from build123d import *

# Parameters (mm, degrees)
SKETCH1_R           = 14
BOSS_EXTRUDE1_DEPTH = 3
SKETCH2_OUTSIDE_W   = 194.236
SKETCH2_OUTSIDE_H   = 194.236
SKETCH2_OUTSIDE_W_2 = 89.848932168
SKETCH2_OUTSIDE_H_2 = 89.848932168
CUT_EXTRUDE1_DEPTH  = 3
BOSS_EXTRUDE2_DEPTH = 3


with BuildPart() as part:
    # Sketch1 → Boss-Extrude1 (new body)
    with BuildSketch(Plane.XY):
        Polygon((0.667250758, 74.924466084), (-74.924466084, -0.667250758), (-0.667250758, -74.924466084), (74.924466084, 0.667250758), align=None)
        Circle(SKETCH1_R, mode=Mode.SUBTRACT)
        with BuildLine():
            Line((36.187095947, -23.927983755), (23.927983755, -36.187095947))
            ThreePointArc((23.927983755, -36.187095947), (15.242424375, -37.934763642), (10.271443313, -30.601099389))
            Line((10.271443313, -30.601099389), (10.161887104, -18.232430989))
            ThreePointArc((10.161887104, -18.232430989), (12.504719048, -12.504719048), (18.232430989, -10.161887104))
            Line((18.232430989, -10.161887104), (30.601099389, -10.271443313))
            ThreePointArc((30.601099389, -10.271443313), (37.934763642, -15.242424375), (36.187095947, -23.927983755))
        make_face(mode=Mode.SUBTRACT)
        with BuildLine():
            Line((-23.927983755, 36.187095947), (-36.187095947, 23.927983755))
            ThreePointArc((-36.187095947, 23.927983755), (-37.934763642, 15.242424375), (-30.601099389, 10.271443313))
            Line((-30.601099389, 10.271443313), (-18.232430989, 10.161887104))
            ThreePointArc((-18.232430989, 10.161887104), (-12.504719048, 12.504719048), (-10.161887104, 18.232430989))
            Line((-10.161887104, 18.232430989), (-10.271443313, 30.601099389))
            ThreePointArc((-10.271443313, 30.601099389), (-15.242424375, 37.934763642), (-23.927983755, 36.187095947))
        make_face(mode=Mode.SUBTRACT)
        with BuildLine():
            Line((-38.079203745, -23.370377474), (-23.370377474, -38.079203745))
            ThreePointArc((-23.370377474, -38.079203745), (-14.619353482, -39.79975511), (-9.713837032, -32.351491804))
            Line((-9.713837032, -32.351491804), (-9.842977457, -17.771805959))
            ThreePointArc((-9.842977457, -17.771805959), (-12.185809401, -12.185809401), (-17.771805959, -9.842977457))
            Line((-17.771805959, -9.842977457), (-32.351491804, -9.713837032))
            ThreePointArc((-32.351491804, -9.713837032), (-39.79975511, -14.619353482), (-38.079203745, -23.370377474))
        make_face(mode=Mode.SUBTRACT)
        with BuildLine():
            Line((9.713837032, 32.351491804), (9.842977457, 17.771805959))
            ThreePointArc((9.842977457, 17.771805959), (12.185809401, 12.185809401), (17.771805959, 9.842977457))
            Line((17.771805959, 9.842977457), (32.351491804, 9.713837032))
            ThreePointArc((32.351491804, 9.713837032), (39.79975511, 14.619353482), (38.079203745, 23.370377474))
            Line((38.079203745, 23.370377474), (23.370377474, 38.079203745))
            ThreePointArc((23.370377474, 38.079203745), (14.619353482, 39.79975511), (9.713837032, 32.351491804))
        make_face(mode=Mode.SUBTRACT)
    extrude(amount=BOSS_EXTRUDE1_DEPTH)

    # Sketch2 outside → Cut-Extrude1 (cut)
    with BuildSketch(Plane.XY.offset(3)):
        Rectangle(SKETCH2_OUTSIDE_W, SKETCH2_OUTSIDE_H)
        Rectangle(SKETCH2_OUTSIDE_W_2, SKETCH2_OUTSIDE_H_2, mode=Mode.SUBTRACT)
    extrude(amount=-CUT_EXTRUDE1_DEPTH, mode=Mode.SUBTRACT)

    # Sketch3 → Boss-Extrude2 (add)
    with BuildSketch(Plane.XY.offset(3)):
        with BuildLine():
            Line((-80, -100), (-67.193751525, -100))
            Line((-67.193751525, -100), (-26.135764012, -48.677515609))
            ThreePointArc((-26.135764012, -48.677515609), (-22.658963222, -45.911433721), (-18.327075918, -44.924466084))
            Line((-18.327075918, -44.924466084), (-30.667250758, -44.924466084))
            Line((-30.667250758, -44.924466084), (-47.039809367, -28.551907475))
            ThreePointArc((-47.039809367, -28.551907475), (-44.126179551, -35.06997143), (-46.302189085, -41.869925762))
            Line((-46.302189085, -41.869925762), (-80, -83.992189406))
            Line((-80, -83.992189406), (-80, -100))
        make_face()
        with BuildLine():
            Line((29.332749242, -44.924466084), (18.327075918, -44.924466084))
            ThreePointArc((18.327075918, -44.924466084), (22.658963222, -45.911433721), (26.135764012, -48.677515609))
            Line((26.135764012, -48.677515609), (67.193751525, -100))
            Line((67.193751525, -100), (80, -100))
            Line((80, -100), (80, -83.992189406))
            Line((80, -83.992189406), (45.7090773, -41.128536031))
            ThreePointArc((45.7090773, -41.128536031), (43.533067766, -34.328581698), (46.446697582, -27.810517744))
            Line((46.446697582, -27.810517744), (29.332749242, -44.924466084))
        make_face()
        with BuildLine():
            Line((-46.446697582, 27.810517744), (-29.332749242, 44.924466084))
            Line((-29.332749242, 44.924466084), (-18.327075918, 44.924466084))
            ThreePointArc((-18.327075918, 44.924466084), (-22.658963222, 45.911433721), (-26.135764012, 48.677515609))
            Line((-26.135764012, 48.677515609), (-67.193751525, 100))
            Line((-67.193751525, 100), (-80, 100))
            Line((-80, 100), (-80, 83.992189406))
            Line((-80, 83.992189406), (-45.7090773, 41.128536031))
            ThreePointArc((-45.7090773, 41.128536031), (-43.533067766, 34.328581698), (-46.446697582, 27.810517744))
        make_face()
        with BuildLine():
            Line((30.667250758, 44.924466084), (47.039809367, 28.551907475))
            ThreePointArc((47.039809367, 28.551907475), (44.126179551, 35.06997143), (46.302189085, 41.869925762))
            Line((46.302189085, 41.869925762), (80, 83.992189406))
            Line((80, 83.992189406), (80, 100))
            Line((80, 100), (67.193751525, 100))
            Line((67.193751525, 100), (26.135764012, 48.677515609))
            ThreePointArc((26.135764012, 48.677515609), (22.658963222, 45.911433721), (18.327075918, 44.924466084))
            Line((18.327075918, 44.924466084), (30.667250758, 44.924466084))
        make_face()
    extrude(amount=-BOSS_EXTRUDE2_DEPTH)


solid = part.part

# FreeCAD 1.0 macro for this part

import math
import FreeCAD as App
import Part
import Sketcher
Q = App.Units.Quantity

doc = App.newDocument("Part")
params = doc.addObject("Spreadsheet::Sheet", "Params")
for row, (alias, value) in enumerate([
    ("sketch1_diameter", "28 mm"),
    ("sketch1_radius", "8 mm"),
    ("pad1_length", "3 mm"),
    ("pocket1_length", "3 mm"),
    ("sketch3_radius", "10 mm"),
    ("pad2_length", "3 mm"),
], start=1):
    params.set(f"A{row}", alias)
    params.set(f"B{row}", "=" + value)
    params.setAlias(f"B{row}", alias)

body = doc.addObject("PartDesign::Body", "Body")

sketch1 = doc.addObject("Sketcher::SketchObject", "Sketch")
body.addObject(sketch1)
sketch1.AttachmentSupport = (doc.XY_Plane, [""])
sketch1.MapMode = "FlatFace"
sketch1.addGeometry(Part.LineSegment(App.Vector(1, 75, 0), App.Vector(-75, -1, 0)), False)
sketch1.addGeometry(Part.LineSegment(App.Vector(-75, -1, 0), App.Vector(-1, -75, 0)), False)
sketch1.addGeometry(Part.LineSegment(App.Vector(-1, -75, 0), App.Vector(75, 1, 0)), False)
sketch1.addGeometry(Part.LineSegment(App.Vector(75, 1, 0), App.Vector(1, 75, 0)), False)
sketch1.addGeometry(Part.LineSegment(App.Vector(-23, -38, 0), App.Vector(-38, -23, 0)), False)
sketch1.addGeometry(Part.ArcOfCircle(Part.Circle(App.Vector(-32, -18, 0), App.Vector(0, 0, 1), 8), math.radians(89), math.radians(225)), False)
sketch1.addGeometry(Part.LineSegment(App.Vector(-32, -10, 0), App.Vector(-18, -10, 0)), False)
sketch1.addGeometry(Part.ArcOfCircle(Part.Circle(App.Vector(-18, -18, 0), App.Vector(0, 0, 1), 8), math.radians(1), math.radians(89)), False)
sketch1.addGeometry(Part.LineSegment(App.Vector(-10, -18, 0), App.Vector(-10, -32, 0)), False)
sketch1.addGeometry(Part.ArcOfCircle(Part.Circle(App.Vector(-18, -32, 0), App.Vector(0, 0, 1), 8), math.radians(-135), math.radians(1)), False)
sketch1.addGeometry(Part.ArcOfCircle(Part.Circle(App.Vector(31, -18, 0), App.Vector(0, 0, 1), 8), math.radians(-45), math.radians(89)), False)
sketch1.addGeometry(Part.LineSegment(App.Vector(36, -24, 0), App.Vector(24, -36, 0)), False)
sketch1.addGeometry(Part.ArcOfCircle(Part.Circle(App.Vector(18, -31, 0), App.Vector(0, 0, 1), 8), math.radians(-179), math.radians(-45)), False)
sketch1.addGeometry(Part.LineSegment(App.Vector(10, -31, 0), App.Vector(10, -18, 0)), False)
sketch1.addGeometry(Part.ArcOfCircle(Part.Circle(App.Vector(18, -18, 0), App.Vector(0, 0, 1), 8), math.radians(89), math.radians(181)), False)
sketch1.addGeometry(Part.LineSegment(App.Vector(18, -10, 0), App.Vector(31, -10, 0)), False)
sketch1.addGeometry(Part.LineSegment(App.Vector(-36, 24, 0), App.Vector(-24, 36, 0)), False)
sketch1.addGeometry(Part.ArcOfCircle(Part.Circle(App.Vector(-18, 31, 0), App.Vector(0, 0, 1), 8), math.radians(1), math.radians(135)), False)
sketch1.addGeometry(Part.LineSegment(App.Vector(-10, 31, 0), App.Vector(-10, 18, 0)), False)
sketch1.addGeometry(Part.ArcOfCircle(Part.Circle(App.Vector(-18, 18, 0), App.Vector(0, 0, 1), 8), math.radians(-91), math.radians(1)), False)
sketch1.addGeometry(Part.LineSegment(App.Vector(-18, 10, 0), App.Vector(-31, 10, 0)), False)
sketch1.addGeometry(Part.ArcOfCircle(Part.Circle(App.Vector(-31, 18, 0), App.Vector(0, 0, 1), 8), math.radians(135), math.radians(269)), False)
sketch1.addGeometry(Part.Circle(App.Vector(0, 0, 0), App.Vector(0, 0, 1), 14), False)
sketch1.addGeometry(Part.LineSegment(App.Vector(10, 18, 0), App.Vector(10, 32, 0)), False)
sketch1.addGeometry(Part.ArcOfCircle(Part.Circle(App.Vector(18, 32, 0), App.Vector(0, 0, 1), 8), math.radians(45), math.radians(181)), False)
sketch1.addGeometry(Part.LineSegment(App.Vector(23, 38, 0), App.Vector(38, 23, 0)), False)
sketch1.addGeometry(Part.ArcOfCircle(Part.Circle(App.Vector(32, 18, 0), App.Vector(0, 0, 1), 8), math.radians(-91), math.radians(45)), False)
sketch1.addGeometry(Part.LineSegment(App.Vector(32, 10, 0), App.Vector(18, 10, 0)), False)
sketch1.addGeometry(Part.ArcOfCircle(Part.Circle(App.Vector(18, 18, 0), App.Vector(0, 0, 1), 8), math.radians(-179), math.radians(-91)), False)
sketch1.addConstraint(Sketcher.Constraint("Coincident", 0, 2, 1, 1))
sketch1.addConstraint(Sketcher.Constraint("Coincident", 1, 2, 2, 1))
sketch1.addConstraint(Sketcher.Constraint("Coincident", 2, 2, 3, 1))
sketch1.addConstraint(Sketcher.Constraint("Coincident", 3, 2, 0, 1))
sketch1.addConstraint(Sketcher.Constraint("Tangent", 4, 2, 5, 2))
sketch1.addConstraint(Sketcher.Constraint("Tangent", 5, 1, 6, 1))
sketch1.addConstraint(Sketcher.Constraint("Tangent", 6, 2, 7, 2))
sketch1.addConstraint(Sketcher.Constraint("Tangent", 7, 1, 8, 1))
sketch1.addConstraint(Sketcher.Constraint("Tangent", 8, 2, 9, 2))
sketch1.addConstraint(Sketcher.Constraint("Tangent", 9, 1, 4, 1))
sketch1.addConstraint(Sketcher.Constraint("Tangent", 10, 1, 11, 1))
sketch1.addConstraint(Sketcher.Constraint("Tangent", 11, 2, 12, 2))
sketch1.addConstraint(Sketcher.Constraint("Tangent", 12, 1, 13, 1))
sketch1.addConstraint(Sketcher.Constraint("Tangent", 13, 2, 14, 2))
sketch1.addConstraint(Sketcher.Constraint("Tangent", 14, 1, 15, 1))
sketch1.addConstraint(Sketcher.Constraint("Tangent", 15, 2, 10, 2))
sketch1.addConstraint(Sketcher.Constraint("Tangent", 16, 2, 17, 2))
sketch1.addConstraint(Sketcher.Constraint("Tangent", 17, 1, 18, 1))
sketch1.addConstraint(Sketcher.Constraint("Tangent", 18, 2, 19, 2))
sketch1.addConstraint(Sketcher.Constraint("Tangent", 19, 1, 20, 1))
sketch1.addConstraint(Sketcher.Constraint("Tangent", 20, 2, 21, 2))
sketch1.addConstraint(Sketcher.Constraint("Tangent", 21, 1, 16, 1))
sketch1.addConstraint(Sketcher.Constraint("Tangent", 23, 2, 24, 2))
sketch1.addConstraint(Sketcher.Constraint("Tangent", 24, 1, 25, 1))
sketch1.addConstraint(Sketcher.Constraint("Tangent", 25, 2, 26, 2))
sketch1.addConstraint(Sketcher.Constraint("Tangent", 26, 1, 27, 1))
sketch1.addConstraint(Sketcher.Constraint("Tangent", 27, 2, 28, 2))
sketch1.addConstraint(Sketcher.Constraint("Tangent", 28, 1, 23, 1))
sketch1.addConstraint(Sketcher.Constraint("Coincident", 22, 3, -1, 1))
sketch1.addConstraint(Sketcher.Constraint("Equal", 5, 7))
sketch1.addConstraint(Sketcher.Constraint("Equal", 7, 9))
sketch1.addConstraint(Sketcher.Constraint("Equal", 9, 10))
sketch1.addConstraint(Sketcher.Constraint("Equal", 10, 12))
sketch1.addConstraint(Sketcher.Constraint("Equal", 12, 14))
sketch1.addConstraint(Sketcher.Constraint("Equal", 14, 17))
sketch1.addConstraint(Sketcher.Constraint("Equal", 17, 19))
sketch1.addConstraint(Sketcher.Constraint("Equal", 19, 21))
sketch1.addConstraint(Sketcher.Constraint("Equal", 21, 24))
sketch1.addConstraint(Sketcher.Constraint("Equal", 24, 26))
sketch1.addConstraint(Sketcher.Constraint("Equal", 26, 28))
sketch1.addConstraint(Sketcher.Constraint("Symmetric", 12, 3, 17, 3, -1, 1))
sketch1.addConstraint(Sketcher.Constraint("Symmetric", 14, 3, 19, 3, -1, 1))
sketch1.addConstraint(Sketcher.Constraint("Symmetric", 10, 3, 21, 3, -1, 1))
sketch1.addConstraint(Sketcher.Constraint("Symmetric", 9, 3, 24, 3, -1, 1))
sketch1.addConstraint(Sketcher.Constraint("Symmetric", 5, 3, 26, 3, -1, 1))
sketch1.addConstraint(Sketcher.Constraint("Symmetric", 7, 3, 28, 3, -1, 1))
sketch1.addConstraint(Sketcher.Constraint("Symmetric", 0, 2, 2, 2, -1, 1))
sketch1.addConstraint(Sketcher.Constraint("Symmetric", 1, 2, 3, 2, -1, 1))
sketch1.addConstraint(Sketcher.Constraint("Perpendicular", 0, 1))
sketch1.addConstraint(Sketcher.Constraint("Parallel", 3, 4))
sketch1.addConstraint(Sketcher.Constraint("Perpendicular", 4, 11))
sketch1.addConstraint(Sketcher.Constraint("Parallel", 8, 13))
sketch1.addConstraint(Sketcher.Constraint("Parallel", 6, 15))
sketch1.addConstraint(Sketcher.Constraint("Equal", 6, 8))
sketch1.addConstraint(Sketcher.Constraint("Diameter", 22, 28.0))
sketch1.addConstraint(Sketcher.Constraint("Radius", 5, 8.0))
sketch1.addConstraint(Sketcher.Constraint("Angle", 0, Q("-135 deg")))
sketch1.addConstraint(Sketcher.Constraint("DistanceY", 12, 1, -1, 1, 30.601099))
sketch1.addConstraint(Sketcher.Constraint("DistanceX", -1, 1, 15, 2, 30.601099))
sketch1.addConstraint(Sketcher.Constraint("DistanceX", 12, 1, 10, 3, 20.258798))
sketch1.addConstraint(Sketcher.Constraint("DistanceY", 10, 3, 13, 2, 0.038699))
sketch1.addConstraint(Sketcher.Constraint("Distance", 0, 106.902831))
sketch1.addConstraint(Sketcher.Constraint("Distance", 1, 105.015561))
sketch1.addConstraint(Sketcher.Constraint("Distance", 4, 20.801422))
sketch1.addConstraint(Sketcher.Constraint("DistanceX", 5, 3, -1, 1, 32.422349))
sketch1.addConstraint(Sketcher.Constraint("DistanceY", 9, 3, -1, 1, 32.422349))
sketch1.setExpression("Constraints[54]", "Params.sketch1_diameter")
sketch1.setExpression("Constraints[55]", "Params.sketch1_radius")
pad1 = doc.addObject("PartDesign::Pad", "Pad")
body.addObject(pad1)
pad1.Profile = sketch1
pad1.setExpression("Length", "Params.pad1_length")

sketch2 = doc.addObject("Sketcher::SketchObject", "Sketch001")
body.addObject(sketch2)
sketch2.AttachmentSupport = (doc.XY_Plane, [""])
sketch2.MapMode = "FlatFace"
sketch2.AttachmentOffset = App.Placement(App.Vector(0, 0, 3), App.Rotation())
sketch2.addGeometry(Part.LineSegment(App.Vector(-97, 97, 0), App.Vector(-97, -97, 0)), False)
sketch2.addGeometry(Part.LineSegment(App.Vector(-97, -97, 0), App.Vector(97, -97, 0)), False)
sketch2.addGeometry(Part.LineSegment(App.Vector(97, -97, 0), App.Vector(97, 97, 0)), False)
sketch2.addGeometry(Part.LineSegment(App.Vector(97, 97, 0), App.Vector(-97, 97, 0)), False)
sketch2.addGeometry(Part.LineSegment(App.Vector(45, -45, 0), App.Vector(-45, -45, 0)), False)
sketch2.addGeometry(Part.LineSegment(App.Vector(-45, -45, 0), App.Vector(-45, 45, 0)), False)
sketch2.addGeometry(Part.LineSegment(App.Vector(-45, 45, 0), App.Vector(45, 45, 0)), False)
sketch2.addGeometry(Part.LineSegment(App.Vector(45, 45, 0), App.Vector(45, -45, 0)), False)
sketch2.addConstraint(Sketcher.Constraint("Coincident", 0, 2, 1, 1))
sketch2.addConstraint(Sketcher.Constraint("Coincident", 1, 2, 2, 1))
sketch2.addConstraint(Sketcher.Constraint("Coincident", 2, 2, 3, 1))
sketch2.addConstraint(Sketcher.Constraint("Coincident", 3, 2, 0, 1))
sketch2.addConstraint(Sketcher.Constraint("Coincident", 4, 2, 5, 1))
sketch2.addConstraint(Sketcher.Constraint("Coincident", 5, 2, 6, 1))
sketch2.addConstraint(Sketcher.Constraint("Coincident", 6, 2, 7, 1))
sketch2.addConstraint(Sketcher.Constraint("Coincident", 7, 2, 4, 1))
sketch2.addConstraint(Sketcher.Constraint("Vertical", 0))
sketch2.addConstraint(Sketcher.Constraint("Horizontal", 1))
sketch2.addConstraint(Sketcher.Constraint("Vertical", 2))
sketch2.addConstraint(Sketcher.Constraint("Horizontal", 3))
sketch2.addConstraint(Sketcher.Constraint("Horizontal", 4))
sketch2.addConstraint(Sketcher.Constraint("Vertical", 5))
sketch2.addConstraint(Sketcher.Constraint("Horizontal", 6))
sketch2.addConstraint(Sketcher.Constraint("Vertical", 7))
sketch2.addConstraint(Sketcher.Constraint("Symmetric", 0, 2, 2, 2, -1, 1))
sketch2.addConstraint(Sketcher.Constraint("Symmetric", 4, 2, 6, 2, -1, 1))
sketch2.addConstraint(Sketcher.Constraint("Equal", 3, 0))
sketch2.addConstraint(Sketcher.Constraint("Equal", 6, 5))
sketch2.addConstraint(Sketcher.Constraint("DistanceX", 1, 1, 1, 2, 194.236))
sketch2.addConstraint(Sketcher.Constraint("DistanceX", 4, 2, 4, 1, 89.848932))
pocket1 = doc.addObject("PartDesign::Pocket", "Pocket")
body.addObject(pocket1)
pocket1.Profile = sketch2
pocket1.setExpression("Length", "Params.pocket1_length")

sketch3 = doc.addObject("Sketcher::SketchObject", "Sketch002")
body.addObject(sketch3)
sketch3.AttachmentSupport = (doc.XY_Plane, [""])
sketch3.MapMode = "FlatFace"
sketch3.AttachmentOffset = App.Placement(App.Vector(0, 0, 3), App.Rotation())
sketch3.addGeometry(Part.LineSegment(App.Vector(-80, -100, 0), App.Vector(-67, -100, 0)), False)
sketch3.addGeometry(Part.LineSegment(App.Vector(-67, -100, 0), App.Vector(-26, -49, 0)), False)
sketch3.addGeometry(Part.ArcOfCircle(Part.Circle(App.Vector(-18, -55, 0), App.Vector(0, 0, 1), 10), math.radians(90), math.radians(141)), False)
sketch3.addGeometry(Part.LineSegment(App.Vector(-18, -45, 0), App.Vector(-31, -45, 0)), False)
sketch3.addGeometry(Part.LineSegment(App.Vector(-31, -45, 0), App.Vector(-47, -29, 0)), False)
sketch3.addGeometry(Part.ArcOfCircle(Part.Circle(App.Vector(-54, -36, 0), App.Vector(0, 0, 1), 10), math.radians(-39), math.radians(45)), False)
sketch3.addGeometry(Part.LineSegment(App.Vector(-46, -42, 0), App.Vector(-80, -84, 0)), False)
sketch3.addGeometry(Part.LineSegment(App.Vector(-80, -84, 0), App.Vector(-80, -100, 0)), False)
sketch3.addGeometry(Part.LineSegment(App.Vector(29, -45, 0), App.Vector(18, -45, 0)), False)
sketch3.addGeometry(Part.ArcOfCircle(Part.Circle(App.Vector(18, -55, 0), App.Vector(0, 0, 1), 10), math.radians(39), math.radians(90)), False)
sketch3.addGeometry(Part.LineSegment(App.Vector(26, -49, 0), App.Vector(67, -100, 0)), False)
sketch3.addGeometry(Part.LineSegment(App.Vector(67, -100, 0), App.Vector(80, -100, 0)), False)
sketch3.addGeometry(Part.LineSegment(App.Vector(80, -100, 0), App.Vector(80, -84, 0)), False)
sketch3.addGeometry(Part.LineSegment(App.Vector(80, -84, 0), App.Vector(46, -41, 0)), False)
sketch3.addGeometry(Part.ArcOfCircle(Part.Circle(App.Vector(54, -35, 0), App.Vector(0, 0, 1), 10), math.radians(135), math.radians(219)), False)
sketch3.addGeometry(Part.LineSegment(App.Vector(46, -28, 0), App.Vector(29, -45, 0)), False)
sketch3.addGeometry(Part.LineSegment(App.Vector(-46, 28, 0), App.Vector(-29, 45, 0)), False)
sketch3.addGeometry(Part.LineSegment(App.Vector(-29, 45, 0), App.Vector(-18, 45, 0)), False)
sketch3.addGeometry(Part.ArcOfCircle(Part.Circle(App.Vector(-18, 55, 0), App.Vector(0, 0, 1), 10), math.radians(-141), math.radians(-90)), False)
sketch3.addGeometry(Part.LineSegment(App.Vector(-26, 49, 0), App.Vector(-67, 100, 0)), False)
sketch3.addGeometry(Part.LineSegment(App.Vector(-67, 100, 0), App.Vector(-80, 100, 0)), False)
sketch3.addGeometry(Part.LineSegment(App.Vector(-80, 100, 0), App.Vector(-80, 84, 0)), False)
sketch3.addGeometry(Part.LineSegment(App.Vector(-80, 84, 0), App.Vector(-46, 41, 0)), False)
sketch3.addGeometry(Part.ArcOfCircle(Part.Circle(App.Vector(-54, 35, 0), App.Vector(0, 0, 1), 10), math.radians(-45), math.radians(39)), False)
sketch3.addGeometry(Part.LineSegment(App.Vector(31, 45, 0), App.Vector(47, 29, 0)), False)
sketch3.addGeometry(Part.ArcOfCircle(Part.Circle(App.Vector(54, 36, 0), App.Vector(0, 0, 1), 10), math.radians(141), math.radians(225)), False)
sketch3.addGeometry(Part.LineSegment(App.Vector(46, 42, 0), App.Vector(80, 84, 0)), False)
sketch3.addGeometry(Part.LineSegment(App.Vector(80, 84, 0), App.Vector(80, 100, 0)), False)
sketch3.addGeometry(Part.LineSegment(App.Vector(80, 100, 0), App.Vector(67, 100, 0)), False)
sketch3.addGeometry(Part.LineSegment(App.Vector(67, 100, 0), App.Vector(26, 49, 0)), False)
sketch3.addGeometry(Part.ArcOfCircle(Part.Circle(App.Vector(18, 55, 0), App.Vector(0, 0, 1), 10), math.radians(-90), math.radians(-39)), False)
sketch3.addGeometry(Part.LineSegment(App.Vector(18, 45, 0), App.Vector(31, 45, 0)), False)
sketch3.addConstraint(Sketcher.Constraint("Coincident", 0, 2, 1, 1))
sketch3.addConstraint(Sketcher.Constraint("Tangent", 1, 2, 2, 2))
sketch3.addConstraint(Sketcher.Constraint("Tangent", 2, 1, 3, 1))
sketch3.addConstraint(Sketcher.Constraint("Coincident", 3, 2, 4, 1))
sketch3.addConstraint(Sketcher.Constraint("Tangent", 4, 2, 5, 2))
sketch3.addConstraint(Sketcher.Constraint("Tangent", 5, 1, 6, 1))
sketch3.addConstraint(Sketcher.Constraint("Coincident", 6, 2, 7, 1))
sketch3.addConstraint(Sketcher.Constraint("Coincident", 7, 2, 0, 1))
sketch3.addConstraint(Sketcher.Constraint("Tangent", 8, 2, 9, 2))
sketch3.addConstraint(Sketcher.Constraint("Tangent", 9, 1, 10, 1))
sketch3.addConstraint(Sketcher.Constraint("Coincident", 10, 2, 11, 1))
sketch3.addConstraint(Sketcher.Constraint("Coincident", 11, 2, 12, 1))
sketch3.addConstraint(Sketcher.Constraint("Coincident", 12, 2, 13, 1))
sketch3.addConstraint(Sketcher.Constraint("Tangent", 13, 2, 14, 2))
sketch3.addConstraint(Sketcher.Constraint("Tangent", 14, 1, 15, 1))
sketch3.addConstraint(Sketcher.Constraint("Coincident", 15, 2, 8, 1))
sketch3.addConstraint(Sketcher.Constraint("Coincident", 16, 2, 17, 1))
sketch3.addConstraint(Sketcher.Constraint("Tangent", 17, 2, 18, 2))
sketch3.addConstraint(Sketcher.Constraint("Tangent", 18, 1, 19, 1))
sketch3.addConstraint(Sketcher.Constraint("Coincident", 19, 2, 20, 1))
sketch3.addConstraint(Sketcher.Constraint("Coincident", 20, 2, 21, 1))
sketch3.addConstraint(Sketcher.Constraint("Coincident", 21, 2, 22, 1))
sketch3.addConstraint(Sketcher.Constraint("Tangent", 22, 2, 23, 2))
sketch3.addConstraint(Sketcher.Constraint("Tangent", 23, 1, 16, 1))
sketch3.addConstraint(Sketcher.Constraint("Tangent", 24, 2, 25, 2))
sketch3.addConstraint(Sketcher.Constraint("Tangent", 25, 1, 26, 1))
sketch3.addConstraint(Sketcher.Constraint("Coincident", 26, 2, 27, 1))
sketch3.addConstraint(Sketcher.Constraint("Coincident", 27, 2, 28, 1))
sketch3.addConstraint(Sketcher.Constraint("Coincident", 28, 2, 29, 1))
sketch3.addConstraint(Sketcher.Constraint("Tangent", 29, 2, 30, 2))
sketch3.addConstraint(Sketcher.Constraint("Tangent", 30, 1, 31, 1))
sketch3.addConstraint(Sketcher.Constraint("Coincident", 31, 2, 24, 1))
sketch3.addConstraint(Sketcher.Constraint("Horizontal", 0))
sketch3.addConstraint(Sketcher.Constraint("Horizontal", 3))
sketch3.addConstraint(Sketcher.Constraint("Vertical", 7))
sketch3.addConstraint(Sketcher.Constraint("Horizontal", 8))
sketch3.addConstraint(Sketcher.Constraint("Horizontal", 11))
sketch3.addConstraint(Sketcher.Constraint("Vertical", 12))
sketch3.addConstraint(Sketcher.Constraint("Horizontal", 17))
sketch3.addConstraint(Sketcher.Constraint("Horizontal", 20))
sketch3.addConstraint(Sketcher.Constraint("Vertical", 21))
sketch3.addConstraint(Sketcher.Constraint("Vertical", 27))
sketch3.addConstraint(Sketcher.Constraint("Horizontal", 28))
sketch3.addConstraint(Sketcher.Constraint("Horizontal", 31))
sketch3.addConstraint(Sketcher.Constraint("Equal", 2, 5))
sketch3.addConstraint(Sketcher.Constraint("Equal", 5, 9))
sketch3.addConstraint(Sketcher.Constraint("Equal", 9, 14))
sketch3.addConstraint(Sketcher.Constraint("Equal", 14, 18))
sketch3.addConstraint(Sketcher.Constraint("Equal", 18, 23))
sketch3.addConstraint(Sketcher.Constraint("Equal", 23, 25))
sketch3.addConstraint(Sketcher.Constraint("Equal", 25, 30))
sketch3.addConstraint(Sketcher.Constraint("Symmetric", 9, 3, 18, 3, -1, 1))
sketch3.addConstraint(Sketcher.Constraint("Symmetric", 14, 3, 23, 3, -1, 1))
sketch3.addConstraint(Sketcher.Constraint("Symmetric", 5, 3, 25, 3, -1, 1))
sketch3.addConstraint(Sketcher.Constraint("Symmetric", 2, 3, 30, 3, -1, 1))
sketch3.addConstraint(Sketcher.Constraint("Symmetric", 10, 2, 19, 2, -1, 1))
sketch3.addConstraint(Sketcher.Constraint("Symmetric", 12, 2, 21, 2, -1, 1))
sketch3.addConstraint(Sketcher.Constraint("Symmetric", 6, 2, 26, 2, -1, 1))
sketch3.addConstraint(Sketcher.Constraint("Symmetric", 0, 2, 28, 2, -1, 1))
sketch3.addConstraint(Sketcher.Constraint("Symmetric", 2, 3, 9, 3, -2))
sketch3.addConstraint(Sketcher.Constraint("Symmetric", 0, 2, 10, 2, -2))
sketch3.addConstraint(Sketcher.Constraint("Symmetric", 6, 2, 12, 2, -2))
sketch3.addConstraint(Sketcher.Constraint("Parallel", 1, 6))
sketch3.addConstraint(Sketcher.Constraint("Parallel", 10, 13))
sketch3.addConstraint(Sketcher.Constraint("Perpendicular", 4, 15))
sketch3.addConstraint(Sketcher.Constraint("Parallel", 15, 16))
sketch3.addConstraint(Sketcher.Constraint("Perpendicular", 16, 24))
sketch3.addConstraint(Sketcher.Constraint("Radius", 2, 10.0))
sketch3.addConstraint(Sketcher.Constraint("Angle", 4, Q("135 deg")))
sketch3.addConstraint(Sketcher.Constraint("DistanceY", 0, 2, -1, 1, 100.0))
sketch3.addConstraint(Sketcher.Constraint("DistanceX", 6, 2, -1, 1, 80.0))
sketch3.addConstraint(Sketcher.Constraint("DistanceX", 9, 1, 14, 3, 27.382001))
sketch3.addConstraint(Sketcher.Constraint("DistanceX", 0, 1, 0, 2, 12.806248))
sketch3.addConstraint(Sketcher.Constraint("DistanceY", 7, 2, 7, 1, 16.007811))
sketch3.addConstraint(Sketcher.Constraint("DistanceX", 5, 3, 2, 3, 35.783801))
sketch3.addConstraint(Sketcher.Constraint("Distance", 1, 65.724849))
sketch3.addConstraint(Sketcher.Constraint("Distance", 13, 54.89226))
sketch3.setExpression("Constraints[67]", "Params.sketch3_radius")
pad2 = doc.addObject("PartDesign::Pad", "Pad001")
body.addObject(pad2)
pad2.Profile = sketch3
pad2.setExpression("Length", "Params.pad2_length")
pad2.Reversed = True

doc.recompute()
